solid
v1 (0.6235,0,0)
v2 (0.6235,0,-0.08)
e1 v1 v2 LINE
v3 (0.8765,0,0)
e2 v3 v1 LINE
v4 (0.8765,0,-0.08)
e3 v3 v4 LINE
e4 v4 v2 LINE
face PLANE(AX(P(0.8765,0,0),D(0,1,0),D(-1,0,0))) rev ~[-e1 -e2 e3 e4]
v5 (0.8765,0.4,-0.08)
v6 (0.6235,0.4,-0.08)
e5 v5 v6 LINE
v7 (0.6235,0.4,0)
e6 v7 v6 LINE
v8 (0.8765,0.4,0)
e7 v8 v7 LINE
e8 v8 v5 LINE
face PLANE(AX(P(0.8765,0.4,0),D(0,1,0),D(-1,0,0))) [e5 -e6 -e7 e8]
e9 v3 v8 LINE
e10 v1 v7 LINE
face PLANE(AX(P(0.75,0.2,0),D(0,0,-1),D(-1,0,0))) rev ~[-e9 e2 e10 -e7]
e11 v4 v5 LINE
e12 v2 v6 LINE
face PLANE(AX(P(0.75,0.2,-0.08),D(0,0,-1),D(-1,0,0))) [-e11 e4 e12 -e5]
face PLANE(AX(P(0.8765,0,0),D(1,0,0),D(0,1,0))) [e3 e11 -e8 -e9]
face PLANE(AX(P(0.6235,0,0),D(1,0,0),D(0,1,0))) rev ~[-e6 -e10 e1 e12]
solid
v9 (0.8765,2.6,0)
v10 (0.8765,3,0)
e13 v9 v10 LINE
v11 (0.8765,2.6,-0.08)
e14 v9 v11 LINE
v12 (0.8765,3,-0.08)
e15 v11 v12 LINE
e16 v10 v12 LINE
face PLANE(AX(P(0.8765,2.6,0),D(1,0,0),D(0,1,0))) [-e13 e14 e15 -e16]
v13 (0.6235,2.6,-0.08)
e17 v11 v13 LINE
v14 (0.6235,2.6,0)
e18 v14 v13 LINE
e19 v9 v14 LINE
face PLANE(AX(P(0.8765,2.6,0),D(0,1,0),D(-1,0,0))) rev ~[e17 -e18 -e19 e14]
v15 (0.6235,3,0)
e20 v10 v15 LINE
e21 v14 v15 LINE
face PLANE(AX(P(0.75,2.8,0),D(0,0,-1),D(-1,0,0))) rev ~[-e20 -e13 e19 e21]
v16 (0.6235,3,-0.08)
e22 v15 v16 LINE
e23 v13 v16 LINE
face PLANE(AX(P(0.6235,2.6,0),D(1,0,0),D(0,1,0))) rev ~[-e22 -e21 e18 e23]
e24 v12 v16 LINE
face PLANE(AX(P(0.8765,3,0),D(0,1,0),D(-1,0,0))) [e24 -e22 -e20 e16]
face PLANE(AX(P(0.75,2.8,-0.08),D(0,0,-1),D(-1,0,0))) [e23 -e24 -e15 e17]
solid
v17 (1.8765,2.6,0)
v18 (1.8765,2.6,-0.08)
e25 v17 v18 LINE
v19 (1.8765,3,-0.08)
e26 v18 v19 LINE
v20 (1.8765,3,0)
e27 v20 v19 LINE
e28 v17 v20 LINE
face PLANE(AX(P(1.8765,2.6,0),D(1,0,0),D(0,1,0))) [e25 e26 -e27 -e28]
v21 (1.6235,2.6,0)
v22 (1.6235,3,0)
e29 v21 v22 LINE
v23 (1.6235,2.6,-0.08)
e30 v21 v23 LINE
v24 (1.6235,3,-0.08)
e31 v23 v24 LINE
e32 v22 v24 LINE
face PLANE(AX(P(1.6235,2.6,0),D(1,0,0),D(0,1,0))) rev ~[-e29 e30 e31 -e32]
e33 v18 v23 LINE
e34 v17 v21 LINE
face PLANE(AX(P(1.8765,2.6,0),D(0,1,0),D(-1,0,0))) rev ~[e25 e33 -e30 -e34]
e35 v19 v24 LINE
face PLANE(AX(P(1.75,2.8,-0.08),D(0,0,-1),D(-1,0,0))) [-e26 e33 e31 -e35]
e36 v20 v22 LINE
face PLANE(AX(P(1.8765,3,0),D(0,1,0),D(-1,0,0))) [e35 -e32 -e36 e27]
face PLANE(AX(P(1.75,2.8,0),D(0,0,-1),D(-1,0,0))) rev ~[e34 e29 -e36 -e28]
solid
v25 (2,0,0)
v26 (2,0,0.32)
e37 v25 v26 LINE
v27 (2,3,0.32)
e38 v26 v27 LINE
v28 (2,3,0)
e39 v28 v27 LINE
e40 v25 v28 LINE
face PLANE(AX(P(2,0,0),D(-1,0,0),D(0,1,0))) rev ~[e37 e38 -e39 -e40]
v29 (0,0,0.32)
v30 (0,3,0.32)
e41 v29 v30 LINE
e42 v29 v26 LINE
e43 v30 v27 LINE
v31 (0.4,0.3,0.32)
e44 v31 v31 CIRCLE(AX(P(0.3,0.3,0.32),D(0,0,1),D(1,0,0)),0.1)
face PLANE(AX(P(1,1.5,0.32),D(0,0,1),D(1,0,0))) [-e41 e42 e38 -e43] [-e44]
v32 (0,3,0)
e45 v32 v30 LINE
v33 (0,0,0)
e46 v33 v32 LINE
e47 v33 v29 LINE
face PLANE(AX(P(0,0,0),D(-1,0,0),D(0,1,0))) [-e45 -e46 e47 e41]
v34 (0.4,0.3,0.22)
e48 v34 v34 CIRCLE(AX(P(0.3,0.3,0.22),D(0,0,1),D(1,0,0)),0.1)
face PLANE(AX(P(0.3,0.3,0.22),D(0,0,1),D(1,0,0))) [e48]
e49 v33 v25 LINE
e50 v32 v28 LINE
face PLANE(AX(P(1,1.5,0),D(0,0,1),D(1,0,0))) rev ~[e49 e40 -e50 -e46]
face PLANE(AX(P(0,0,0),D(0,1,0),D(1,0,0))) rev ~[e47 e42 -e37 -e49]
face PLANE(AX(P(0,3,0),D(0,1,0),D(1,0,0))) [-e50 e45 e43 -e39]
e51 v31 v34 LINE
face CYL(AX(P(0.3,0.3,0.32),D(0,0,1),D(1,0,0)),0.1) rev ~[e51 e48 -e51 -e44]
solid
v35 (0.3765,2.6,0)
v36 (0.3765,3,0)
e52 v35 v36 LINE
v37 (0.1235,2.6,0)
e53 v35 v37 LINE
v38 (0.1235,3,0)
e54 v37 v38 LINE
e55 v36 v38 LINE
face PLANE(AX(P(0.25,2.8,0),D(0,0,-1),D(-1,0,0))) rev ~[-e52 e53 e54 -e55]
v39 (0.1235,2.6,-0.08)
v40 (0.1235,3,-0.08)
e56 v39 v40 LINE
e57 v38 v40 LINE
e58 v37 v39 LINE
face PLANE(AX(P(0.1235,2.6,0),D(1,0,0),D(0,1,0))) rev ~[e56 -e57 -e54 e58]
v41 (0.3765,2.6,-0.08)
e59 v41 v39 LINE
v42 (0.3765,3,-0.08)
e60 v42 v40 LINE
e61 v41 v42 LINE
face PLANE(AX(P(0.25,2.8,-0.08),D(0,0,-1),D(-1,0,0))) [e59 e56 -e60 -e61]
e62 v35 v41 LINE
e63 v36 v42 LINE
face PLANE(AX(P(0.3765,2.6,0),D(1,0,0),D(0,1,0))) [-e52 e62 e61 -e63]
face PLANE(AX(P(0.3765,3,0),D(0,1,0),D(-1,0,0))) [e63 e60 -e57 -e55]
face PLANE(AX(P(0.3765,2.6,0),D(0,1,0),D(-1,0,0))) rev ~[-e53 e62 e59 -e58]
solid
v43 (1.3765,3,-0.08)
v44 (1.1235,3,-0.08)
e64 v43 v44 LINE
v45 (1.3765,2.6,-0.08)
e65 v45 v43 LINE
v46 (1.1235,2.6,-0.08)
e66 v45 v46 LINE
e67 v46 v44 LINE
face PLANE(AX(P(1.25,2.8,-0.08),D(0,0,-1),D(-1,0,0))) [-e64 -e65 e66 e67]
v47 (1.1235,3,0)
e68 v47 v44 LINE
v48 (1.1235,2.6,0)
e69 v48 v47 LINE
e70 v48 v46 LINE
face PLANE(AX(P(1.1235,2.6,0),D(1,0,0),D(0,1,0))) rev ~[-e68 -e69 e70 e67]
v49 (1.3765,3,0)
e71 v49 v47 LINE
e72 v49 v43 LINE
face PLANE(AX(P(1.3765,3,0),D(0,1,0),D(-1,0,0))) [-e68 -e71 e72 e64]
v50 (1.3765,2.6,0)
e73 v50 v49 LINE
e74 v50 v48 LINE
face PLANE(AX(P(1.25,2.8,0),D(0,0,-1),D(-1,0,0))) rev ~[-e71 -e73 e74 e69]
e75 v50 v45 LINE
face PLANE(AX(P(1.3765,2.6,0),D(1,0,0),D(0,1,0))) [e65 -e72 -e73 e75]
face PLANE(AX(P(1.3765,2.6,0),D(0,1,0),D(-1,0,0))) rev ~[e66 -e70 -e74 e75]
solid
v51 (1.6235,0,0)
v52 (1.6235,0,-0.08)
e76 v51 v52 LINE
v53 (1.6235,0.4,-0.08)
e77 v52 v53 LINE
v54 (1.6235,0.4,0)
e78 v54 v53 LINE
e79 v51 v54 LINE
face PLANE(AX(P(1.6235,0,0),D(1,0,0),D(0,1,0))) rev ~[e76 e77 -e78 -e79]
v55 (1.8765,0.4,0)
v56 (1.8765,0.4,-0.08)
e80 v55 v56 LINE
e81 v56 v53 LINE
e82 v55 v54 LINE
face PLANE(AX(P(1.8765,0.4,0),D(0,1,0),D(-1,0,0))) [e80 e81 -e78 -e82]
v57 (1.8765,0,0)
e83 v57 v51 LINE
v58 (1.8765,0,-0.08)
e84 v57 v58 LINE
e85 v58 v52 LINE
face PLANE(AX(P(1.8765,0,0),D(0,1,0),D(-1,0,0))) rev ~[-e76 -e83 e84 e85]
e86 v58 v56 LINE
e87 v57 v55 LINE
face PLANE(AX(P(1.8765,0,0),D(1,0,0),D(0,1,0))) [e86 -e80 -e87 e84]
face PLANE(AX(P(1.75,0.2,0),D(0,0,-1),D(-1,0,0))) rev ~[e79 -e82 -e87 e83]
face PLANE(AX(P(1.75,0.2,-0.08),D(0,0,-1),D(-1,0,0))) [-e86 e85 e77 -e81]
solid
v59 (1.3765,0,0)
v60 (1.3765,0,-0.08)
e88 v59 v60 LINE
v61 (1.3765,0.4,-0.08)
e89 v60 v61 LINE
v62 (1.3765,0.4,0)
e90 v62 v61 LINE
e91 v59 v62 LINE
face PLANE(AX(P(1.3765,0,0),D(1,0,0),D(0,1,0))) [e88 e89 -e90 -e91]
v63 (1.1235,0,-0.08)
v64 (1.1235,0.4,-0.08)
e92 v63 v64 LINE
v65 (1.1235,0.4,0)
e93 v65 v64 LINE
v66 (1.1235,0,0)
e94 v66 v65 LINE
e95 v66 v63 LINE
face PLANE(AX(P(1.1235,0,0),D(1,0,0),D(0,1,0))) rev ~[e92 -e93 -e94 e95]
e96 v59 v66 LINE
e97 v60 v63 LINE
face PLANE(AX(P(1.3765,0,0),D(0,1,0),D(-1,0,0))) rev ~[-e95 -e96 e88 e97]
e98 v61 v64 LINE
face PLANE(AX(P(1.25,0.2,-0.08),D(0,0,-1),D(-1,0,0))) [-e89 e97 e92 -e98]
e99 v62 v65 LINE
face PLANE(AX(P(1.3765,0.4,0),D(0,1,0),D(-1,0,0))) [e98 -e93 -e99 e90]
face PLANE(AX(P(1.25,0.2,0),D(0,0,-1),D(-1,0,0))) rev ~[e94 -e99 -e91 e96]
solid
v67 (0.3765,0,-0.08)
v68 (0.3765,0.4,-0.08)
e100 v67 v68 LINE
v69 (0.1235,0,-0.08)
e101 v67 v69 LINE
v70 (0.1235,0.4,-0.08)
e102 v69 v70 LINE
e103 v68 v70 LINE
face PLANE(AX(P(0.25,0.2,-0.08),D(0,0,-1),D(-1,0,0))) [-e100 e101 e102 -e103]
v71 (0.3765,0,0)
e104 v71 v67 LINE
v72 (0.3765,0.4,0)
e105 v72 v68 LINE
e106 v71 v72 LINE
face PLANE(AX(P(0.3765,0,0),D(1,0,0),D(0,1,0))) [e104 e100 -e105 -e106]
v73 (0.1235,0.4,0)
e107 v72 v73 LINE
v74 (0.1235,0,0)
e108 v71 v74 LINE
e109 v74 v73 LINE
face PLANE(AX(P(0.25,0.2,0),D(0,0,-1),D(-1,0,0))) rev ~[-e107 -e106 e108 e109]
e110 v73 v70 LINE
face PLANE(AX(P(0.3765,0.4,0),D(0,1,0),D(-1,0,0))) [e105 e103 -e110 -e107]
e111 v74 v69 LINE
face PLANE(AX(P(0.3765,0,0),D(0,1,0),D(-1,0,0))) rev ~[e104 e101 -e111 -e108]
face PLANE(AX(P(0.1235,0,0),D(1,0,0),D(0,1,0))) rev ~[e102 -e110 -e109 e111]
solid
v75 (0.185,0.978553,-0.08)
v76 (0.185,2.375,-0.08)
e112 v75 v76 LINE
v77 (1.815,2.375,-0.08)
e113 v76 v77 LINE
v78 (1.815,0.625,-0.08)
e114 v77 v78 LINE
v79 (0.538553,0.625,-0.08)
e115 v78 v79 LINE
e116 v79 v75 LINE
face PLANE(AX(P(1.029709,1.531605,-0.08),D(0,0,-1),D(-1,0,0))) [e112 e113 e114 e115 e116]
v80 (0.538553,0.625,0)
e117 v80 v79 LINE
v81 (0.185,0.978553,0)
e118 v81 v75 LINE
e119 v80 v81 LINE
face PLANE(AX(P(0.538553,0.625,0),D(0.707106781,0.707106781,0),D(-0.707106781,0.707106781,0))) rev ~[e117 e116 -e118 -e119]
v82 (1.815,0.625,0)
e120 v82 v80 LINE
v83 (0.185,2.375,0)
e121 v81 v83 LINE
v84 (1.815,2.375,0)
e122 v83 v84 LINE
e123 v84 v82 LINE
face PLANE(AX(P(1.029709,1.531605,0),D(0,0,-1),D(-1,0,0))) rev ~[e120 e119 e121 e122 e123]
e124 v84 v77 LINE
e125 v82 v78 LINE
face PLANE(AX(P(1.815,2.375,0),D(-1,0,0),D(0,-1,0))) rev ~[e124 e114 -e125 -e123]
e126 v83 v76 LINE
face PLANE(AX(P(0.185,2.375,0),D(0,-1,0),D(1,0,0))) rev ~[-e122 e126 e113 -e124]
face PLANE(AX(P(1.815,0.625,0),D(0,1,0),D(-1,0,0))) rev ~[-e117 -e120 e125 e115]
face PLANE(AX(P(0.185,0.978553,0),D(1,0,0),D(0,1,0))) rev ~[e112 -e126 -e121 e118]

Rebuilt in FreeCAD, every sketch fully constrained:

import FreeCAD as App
import Part
import Sketcher

V = App.Vector
Q = App.Units.Quantity


def add_polygon(sketch, points):
    """Adds a closed chain of lines whose ends are joined by coincident constraints."""
    first, n = sketch.GeometryCount, len(points)
    for a, b in zip(points, points[1:] + points[:1]):
        sketch.addGeometry(Part.LineSegment(App.Vector(*a, 0), App.Vector(*b, 0)), False)
    for i in range(n):
        sketch.addConstraint(Sketcher.Constraint("Coincident", first + i, 2, first + (i + 1) % n, 1))

doc = App.newDocument("Part")
params = doc.addObject("Spreadsheet::Sheet", "Params")
for row, (alias, value) in enumerate([
    ("sketch1_width", "2 mm"),
    ("sketch1_height", "3 mm"),
    ("pad1_length", "0.32 mm"),
    ("sketch2_diameter", "0.2 mm"),
    ("pocket1_length", "0.1 mm"),
    ("sketch3_length", "0.5 mm"),
    ("sketch3_width", "1.63 mm"),
    ("sketch3_height", "1.75 mm"),
    ("pad2_length", "0.08 mm"),
    ("sketch4_height", "0.4 mm"),
    ("pad3_length", "0.08 mm"),
    ("sketch5_height", "0.4 mm"),
    ("pad4_length", "0.08 mm"),
    ("sketch6_height", "0.4 mm"),
    ("pad5_length", "0.08 mm"),
    ("sketch7_height", "0.4 mm"),
    ("pad6_length", "0.08 mm"),
    ("sketch8_height", "0.4 mm"),
    ("pad7_length", "0.08 mm"),
    ("sketch9_height", "0.4 mm"),
    ("pad8_length", "0.08 mm"),
    ("sketch10_height", "0.4 mm"),
    ("pad9_length", "0.08 mm"),
    ("sketch11_height", "0.4 mm"),
    ("pad10_length", "0.08 mm"),
], start=1):
    params.set(f"A{row}", alias)
    params.set(f"B{row}", "=" + value)
    params.setAlias(f"B{row}", alias)

body = doc.addObject("PartDesign::Body", "Body")

sketch1 = doc.addObject("Sketcher::SketchObject", "Sketch")
body.addObject(sketch1)
sketch1.AttachmentSupport = (doc.XY_Plane, [""])
sketch1.MapMode = "FlatFace"
add_polygon(sketch1, [(0, 3), (0, 0), (2, 0), (2, 3)])
sketch1.addConstraint([
    Sketcher.Constraint("Vertical", 0),
    Sketcher.Constraint("Horizontal", 1),
    Sketcher.Constraint("Vertical", 2),
    Sketcher.Constraint("Horizontal", 3),
    Sketcher.Constraint("Coincident", 0, 2, -1, 1),
    Sketcher.Constraint("DistanceX", 1, 1, 1, 2, 2.0),
    Sketcher.Constraint("DistanceY", 0, 2, 0, 1, 3.0),
])
sketch1.setExpression("Constraints[9]", "Params.sketch1_width")
sketch1.setExpression("Constraints[10]", "Params.sketch1_height")
pad1 = doc.addObject("PartDesign::Pad", "Pad")
body.addObject(pad1)
pad1.Profile = sketch1
pad1.setExpression("Length", "Params.pad1_length")

sketch2 = doc.addObject("Sketcher::SketchObject", "Sketch001")
body.addObject(sketch2)
sketch2.AttachmentSupport = (doc.XY_Plane, [""])
sketch2.MapMode = "FlatFace"
sketch2.AttachmentOffset = App.Placement(V(0, 0, 0.32), App.Rotation())
sketch2.addGeometry(Part.Circle(V(0.3, 0.3, 0), V(0, 0, 1), 0.1), False)
sketch2.addConstraint([
    Sketcher.Constraint("Diameter", 0, 0.2),
    Sketcher.Constraint("DistanceX", -1, 1, 0, 3, 0.3),
    Sketcher.Constraint("DistanceY", -1, 1, 0, 3, 0.3),
])
sketch2.setExpression("Constraints[0]", "Params.sketch2_diameter")
pocket1 = doc.addObject("PartDesign::Pocket", "Pocket")
body.addObject(pocket1)
pocket1.Profile = sketch2
pocket1.setExpression("Length", "Params.pocket1_length")
body2 = doc.addObject("PartDesign::Body", "Body001")

sketch3 = doc.addObject("Sketcher::SketchObject", "Sketch002")
body2.addObject(sketch3)
sketch3.AttachmentSupport = (doc.getObject("XY_Plane001"), [""])
sketch3.MapMode = "FlatFace"
add_polygon(sketch3, [(0.5, 0.6), (0.2, 1), (0.2, 2.4), (1.8, 2.4), (1.8, 0.6)])
sketch3.addConstraint([
    Sketcher.Constraint("Vertical", 1),
    Sketcher.Constraint("Horizontal", 2),
    Sketcher.Constraint("Vertical", 3),
    Sketcher.Constraint("Horizontal", 4),
    Sketcher.Constraint("Angle", 0, Q("135 deg")),
    Sketcher.Constraint("Distance", 0, 0.5),
    Sketcher.Constraint("DistanceX", 2, 1, 2, 2, 1.63),
    Sketcher.Constraint("DistanceY", 3, 2, 3, 1, 1.75),
    Sketcher.Constraint("DistanceX", -1, 1, 0, 2, 0.185),
    Sketcher.Constraint("DistanceY", -1, 1, 1, 2, 2.375),
])
sketch3.setExpression("Constraints[10]", "Params.sketch3_length")
sketch3.setExpression("Constraints[11]", "Params.sketch3_width")
sketch3.setExpression("Constraints[12]", "Params.sketch3_height")
pad2 = doc.addObject("PartDesign::Pad", "Pad001")
body2.addObject(pad2)
pad2.Profile = sketch3
pad2.setExpression("Length", "Params.pad2_length")
pad2.Reversed = True
body3 = doc.addObject("PartDesign::Body", "Body002")

sketch4 = doc.addObject("Sketcher::SketchObject", "Sketch003")
body3.addObject(sketch4)
sketch4.AttachmentSupport = (doc.getObject("XY_Plane002"), [""])
sketch4.MapMode = "FlatFace"
add_polygon(sketch4, [(1.88, 3), (1.88, 2.6), (1.62, 2.6), (1.62, 3)])
sketch4.addConstraint([
    Sketcher.Constraint("Vertical", 0),
    Sketcher.Constraint("Horizontal", 1),
    Sketcher.Constraint("Vertical", 2),
    Sketcher.Constraint("Horizontal", 3),
    Sketcher.Constraint("DistanceY", 0, 2, 0, 1, 0.4),
    Sketcher.Constraint("DistanceY", -1, 1, 2, 2, 3.0),
    Sketcher.Constraint("DistanceX", 1, 2, 1, 1, 0.253),
    Sketcher.Constraint("DistanceX", -1, 1, 0, 2, 1.8765),
])
sketch4.setExpression("Constraints[8]", "Params.sketch4_height")
pad3 = doc.addObject("PartDesign::Pad", "Pad002")
body3.addObject(pad3)
pad3.Profile = sketch4
pad3.setExpression("Length", "Params.pad3_length")
pad3.Reversed = True
body4 = doc.addObject("PartDesign::Body", "Body003")

sketch5 = doc.addObject("Sketcher::SketchObject", "Sketch004")
body4.addObject(sketch5)
sketch5.AttachmentSupport = (doc.getObject("XY_Plane003"), [""])
sketch5.MapMode = "FlatFace"
add_polygon(sketch5, [(1.38, 3), (1.38, 2.6), (1.12, 2.6), (1.12, 3)])
sketch5.addConstraint([
    Sketcher.Constraint("Vertical", 0),
    Sketcher.Constraint("Horizontal", 1),
    Sketcher.Constraint("Vertical", 2),
    Sketcher.Constraint("Horizontal", 3),
    Sketcher.Constraint("DistanceY", 0, 2, 0, 1, 0.4),
    Sketcher.Constraint("DistanceY", -1, 1, 2, 2, 3.0),
    Sketcher.Constraint("DistanceX", 1, 2, 1, 1, 0.253),
    Sketcher.Constraint("DistanceX", -1, 1, 0, 2, 1.3765),
])
sketch5.setExpression("Constraints[8]", "Params.sketch5_height")
pad4 = doc.addObject("PartDesign::Pad", "Pad003")
body4.addObject(pad4)
pad4.Profile = sketch5
pad4.setExpression("Length", "Params.pad4_length")
pad4.Reversed = True
body5 = doc.addObject("PartDesign::Body", "Body004")

sketch6 = doc.addObject("Sketcher::SketchObject", "Sketch005")
body5.addObject(sketch6)
sketch6.AttachmentSupport = (doc.getObject("XY_Plane004"), [""])
sketch6.MapMode = "FlatFace"
add_polygon(sketch6, [(0.88, 3), (0.88, 2.6), (0.62, 2.6), (0.62, 3)])
sketch6.addConstraint([
    Sketcher.Constraint("Vertical", 0),
    Sketcher.Constraint("Horizontal", 1),
    Sketcher.Constraint("Vertical", 2),
    Sketcher.Constraint("Horizontal", 3),
    Sketcher.Constraint("DistanceY", 0, 2, 0, 1, 0.4),
    Sketcher.Constraint("DistanceY", -1, 1, 2, 2, 3.0),
    Sketcher.Constraint("DistanceX", 1, 2, 1, 1, 0.253),
    Sketcher.Constraint("DistanceX", -1, 1, 0, 2, 0.8765),
])
sketch6.setExpression("Constraints[8]", "Params.sketch6_height")
pad5 = doc.addObject("PartDesign::Pad", "Pad004")
body5.addObject(pad5)
pad5.Profile = sketch6
pad5.setExpression("Length", "Params.pad5_length")
pad5.Reversed = True
body6 = doc.addObject("PartDesign::Body", "Body005")

sketch7 = doc.addObject("Sketcher::SketchObject", "Sketch006")
body6.addObject(sketch7)
sketch7.AttachmentSupport = (doc.getObject("XY_Plane005"), [""])
sketch7.MapMode = "FlatFace"
add_polygon(sketch7, [(0.38, 3), (0.38, 2.6), (0.12, 2.6), (0.12, 3)])
sketch7.addConstraint([
    Sketcher.Constraint("Vertical", 0),
    Sketcher.Constraint("Horizontal", 1),
    Sketcher.Constraint("Vertical", 2),
    Sketcher.Constraint("Horizontal", 3),
    Sketcher.Constraint("DistanceY", 0, 2, 0, 1, 0.4),
    Sketcher.Constraint("DistanceY", -1, 1, 2, 2, 3.0),
    Sketcher.Constraint("DistanceX", 1, 2, 1, 1, 0.253),
    Sketcher.Constraint("DistanceX", -1, 1, 0, 2, 0.3765),
])
sketch7.setExpression("Constraints[8]", "Params.sketch7_height")
pad6 = doc.addObject("PartDesign::Pad", "Pad005")
body6.addObject(pad6)
pad6.Profile = sketch7
pad6.setExpression("Length", "Params.pad6_length")
pad6.Reversed = True
body7 = doc.addObject("PartDesign::Body", "Body006")

sketch8 = doc.addObject("Sketcher::SketchObject", "Sketch007")
body7.addObject(sketch8)
sketch8.AttachmentSupport = (doc.getObject("XY_Plane006"), [""])
sketch8.MapMode = "FlatFace"
add_polygon(sketch8, [(1.38, 0.4), (1.38, 0), (1.12, 0), (1.12, 0.4)])
sketch8.addConstraint([
    Sketcher.Constraint("Vertical", 0),
    Sketcher.Constraint("Horizontal", 1),
    Sketcher.Constraint("Vertical", 2),
    Sketcher.Constraint("Horizontal", 3),
    Sketcher.Constraint("PointOnObject", 0, 2, -1),
    Sketcher.Constraint("DistanceY", 0, 2, 0, 1, 0.4),
    Sketcher.Constraint("DistanceX", 1, 2, 1, 1, 0.253),
    Sketcher.Constraint("DistanceX", -1, 1, 0, 2, 1.3765),
])
sketch8.setExpression("Constraints[9]", "Params.sketch8_height")
pad7 = doc.addObject("PartDesign::Pad", "Pad006")
body7.addObject(pad7)
pad7.Profile = sketch8
pad7.setExpression("Length", "Params.pad7_length")
pad7.Reversed = True
body8 = doc.addObject("PartDesign::Body", "Body007")

sketch9 = doc.addObject("Sketcher::SketchObject", "Sketch008")
body8.addObject(sketch9)
sketch9.AttachmentSupport = (doc.getObject("XY_Plane007"), [""])
sketch9.MapMode = "FlatFace"
add_polygon(sketch9, [(0.88, 0.4), (0.88, 0), (0.62, 0), (0.62, 0.4)])
sketch9.addConstraint([
    Sketcher.Constraint("Vertical", 0),
    Sketcher.Constraint("Horizontal", 1),
    Sketcher.Constraint("Vertical", 2),
    Sketcher.Constraint("Horizontal", 3),
    Sketcher.Constraint("PointOnObject", 0, 2, -1),
    Sketcher.Constraint("DistanceY", 0, 2, 0, 1, 0.4),
    Sketcher.Constraint("DistanceX", 1, 2, 1, 1, 0.253),
    Sketcher.Constraint("DistanceX", -1, 1, 0, 2, 0.8765),
])
sketch9.setExpression("Constraints[9]", "Params.sketch9_height")
pad8 = doc.addObject("PartDesign::Pad", "Pad007")
body8.addObject(pad8)
pad8.Profile = sketch9
pad8.setExpression("Length", "Params.pad8_length")
pad8.Reversed = True
body9 = doc.addObject("PartDesign::Body", "Body008")

sketch10 = doc.addObject("Sketcher::SketchObject", "Sketch009")
body9.addObject(sketch10)
sketch10.AttachmentSupport = (doc.getObject("XY_Plane008"), [""])
sketch10.MapMode = "FlatFace"
add_polygon(sketch10, [(0.38, 0.4), (0.38, 0), (0.12, 0), (0.12, 0.4)])
sketch10.addConstraint([
    Sketcher.Constraint("Vertical", 0),
    Sketcher.Constraint("Horizontal", 1),
    Sketcher.Constraint("Vertical", 2),
    Sketcher.Constraint("Horizontal", 3),
    Sketcher.Constraint("PointOnObject", 0, 2, -1),
    Sketcher.Constraint("DistanceY", 0, 2, 0, 1, 0.4),
    Sketcher.Constraint("DistanceX", 1, 2, 1, 1, 0.253),
    Sketcher.Constraint("DistanceX", -1, 1, 0, 2, 0.3765),
])
sketch10.setExpression("Constraints[9]", "Params.sketch10_height")
pad9 = doc.addObject("PartDesign::Pad", "Pad008")
body9.addObject(pad9)
pad9.Profile = sketch10
pad9.setExpression("Length", "Params.pad9_length")
pad9.Reversed = True
body10 = doc.addObject("PartDesign::Body", "Body009")

sketch11 = doc.addObject("Sketcher::SketchObject", "Sketch010")
body10.addObject(sketch11)
sketch11.AttachmentSupport = (doc.getObject("XY_Plane009"), [""])
sketch11.MapMode = "FlatFace"
add_polygon(sketch11, [(1.88, 0.4), (1.88, 0), (1.62, 0), (1.62, 0.4)])
sketch11.addConstraint([
    Sketcher.Constraint("Vertical", 0),
    Sketcher.Constraint("Horizontal", 1),
    Sketcher.Constraint("Vertical", 2),
    Sketcher.Constraint("Horizontal", 3),
    Sketcher.Constraint("PointOnObject", 0, 2, -1),
    Sketcher.Constraint("DistanceY", 0, 2, 0, 1, 0.4),
    Sketcher.Constraint("DistanceX", 1, 2, 1, 1, 0.253),
    Sketcher.Constraint("DistanceX", -1, 1, 0, 2, 1.8765),
])
sketch11.setExpression("Constraints[9]", "Params.sketch11_height")
pad10 = doc.addObject("PartDesign::Pad", "Pad009")
body10.addObject(pad10)
pad10.Profile = sketch11
pad10.setExpression("Length", "Params.pad10_length")
pad10.Reversed = True

doc.recompute()
